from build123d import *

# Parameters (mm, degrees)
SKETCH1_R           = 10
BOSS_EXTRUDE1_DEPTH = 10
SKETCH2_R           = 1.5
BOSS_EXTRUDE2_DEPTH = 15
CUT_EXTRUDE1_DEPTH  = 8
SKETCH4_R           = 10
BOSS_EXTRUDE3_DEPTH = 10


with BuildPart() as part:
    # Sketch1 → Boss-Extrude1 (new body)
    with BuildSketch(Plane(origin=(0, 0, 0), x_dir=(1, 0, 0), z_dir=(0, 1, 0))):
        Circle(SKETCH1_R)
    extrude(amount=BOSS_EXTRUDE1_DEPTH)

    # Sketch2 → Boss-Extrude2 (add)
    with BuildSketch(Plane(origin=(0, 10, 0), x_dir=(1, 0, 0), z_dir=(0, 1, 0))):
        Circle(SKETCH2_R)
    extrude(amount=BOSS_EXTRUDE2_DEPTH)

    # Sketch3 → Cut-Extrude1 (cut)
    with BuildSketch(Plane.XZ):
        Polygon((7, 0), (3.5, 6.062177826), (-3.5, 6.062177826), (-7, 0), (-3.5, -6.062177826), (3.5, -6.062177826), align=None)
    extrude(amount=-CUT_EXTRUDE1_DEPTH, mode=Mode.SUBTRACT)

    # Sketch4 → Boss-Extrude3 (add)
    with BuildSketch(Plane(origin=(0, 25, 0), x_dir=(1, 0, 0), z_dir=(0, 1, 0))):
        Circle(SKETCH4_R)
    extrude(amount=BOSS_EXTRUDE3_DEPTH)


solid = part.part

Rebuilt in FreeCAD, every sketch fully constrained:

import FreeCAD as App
import Part
import Sketcher

V = App.Vector
Q = App.Units.Quantity

doc = App.newDocument("Part")
body = doc.addObject("PartDesign::Body", "Body")

sketch1 = body.newObject("Sketcher::SketchObject", "Sketch")
sketch1.AttachmentSupport = (doc.getObject("XZ_Plane"), [""])
sketch1.MapMode = "FlatFace"
sketch1.addGeometry(Part.Circle(V(0, 0, 0), V(0, 0, 1), 10), False)
sketch1.addConstraint(Sketcher.Constraint("Coincident", 0, 3, -1, 1))
sketch1.addConstraint(Sketcher.Constraint("Diameter", 0, 20.0))
pad1 = body.newObject("PartDesign::Pad", "Pad")
pad1.Profile = sketch1
pad1.Length = 10
pad1.Reversed = True

sketch2 = body.newObject("Sketcher::SketchObject", "Sketch001")
sketch2.AttachmentSupport = (doc.getObject("XZ_Plane"), [""])
sketch2.MapMode = "FlatFace"
sketch2.AttachmentOffset = App.Placement(V(0, 0, -10), App.Rotation())
sketch2.addGeometry(Part.Circle(V(0, 0, 0), V(0, 0, 1), 1.5), False)
sketch2.addConstraint(Sketcher.Constraint("Coincident", 0, 3, -1, 1))
sketch2.addConstraint(Sketcher.Constraint("Diameter", 0, 3.0))
pad2 = body.newObject("PartDesign::Pad", "Pad001")
pad2.Profile = sketch2
pad2.Length = 15
pad2.Reversed = True

sketch3 = body.newObject("Sketcher::SketchObject", "Sketch002")
sketch3.AttachmentSupport = (doc.getObject("XZ_Plane"), [""])
sketch3.MapMode = "FlatFace"
sketch3.addGeometry(Part.LineSegment(V(7, 0, 0), V(4, 6, 0)), False)
sketch3.addGeometry(Part.LineSegment(V(4, 6, 0), V(-4, 6, 0)), False)
sketch3.addGeometry(Part.LineSegment(V(-4, 6, 0), V(-7, 0, 0)), False)
sketch3.addGeometry(Part.LineSegment(V(-7, 0, 0), V(-4, -6, 0)), False)
sketch3.addGeometry(Part.LineSegment(V(-4, -6, 0), V(4, -6, 0)), False)
sketch3.addGeometry(Part.LineSegment(V(4, -6, 0), V(7, 0, 0)), False)
sketch3.addConstraint(Sketcher.Constraint("Coincident", 0, 2, 1, 1))
sketch3.addConstraint(Sketcher.Constraint("Coincident", 1, 2, 2, 1))
sketch3.addConstraint(Sketcher.Constraint("Coincident", 2, 2, 3, 1))
sketch3.addConstraint(Sketcher.Constraint("Coincident", 3, 2, 4, 1))
sketch3.addConstraint(Sketcher.Constraint("Coincident", 4, 2, 5, 1))
sketch3.addConstraint(Sketcher.Constraint("Coincident", 5, 2, 0, 1))
sketch3.addConstraint(Sketcher.Constraint("Horizontal", 1))
sketch3.addConstraint(Sketcher.Constraint("Horizontal", 4))
sketch3.addConstraint(Sketcher.Constraint("Symmetric", 0, 2, 3, 2, -1, 1))
sketch3.addConstraint(Sketcher.Constraint("Symmetric", 2, 2, 5, 2, -1, 1))
sketch3.addConstraint(Sketcher.Constraint("PointOnObject", 2, 2, -1))
sketch3.addConstraint(Sketcher.Constraint("Parallel", 2, 5))
sketch3.addConstraint(Sketcher.Constraint("Vertical", 1, 2, 3, 2))
sketch3.addConstraint(Sketcher.Constraint("DistanceX", 1, 2, 1, 1, 7.0))
sketch3.addConstraint(Sketcher.Constraint("Angle", 0, Q("120 deg")))
sketch3.addConstraint(Sketcher.Constraint("Distance", 0, 7.0))
pocket1 = body.newObject("PartDesign::Pocket", "Pocket")
pocket1.Profile = sketch3
pocket1.Length = 8

sketch4 = body.newObject("Sketcher::SketchObject", "Sketch003")
sketch4.AttachmentSupport = (doc.getObject("XZ_Plane"), [""])
sketch4.MapMode = "FlatFace"
sketch4.AttachmentOffset = App.Placement(V(0, 0, -25), App.Rotation())
sketch4.addGeometry(Part.Circle(V(0, 0, 0), V(0, 0, 1), 10), False)
sketch4.addConstraint(Sketcher.Constraint("Coincident", 0, 3, -1, 1))
sketch4.addConstraint(Sketcher.Constraint("Diameter", 0, 20.0))
pad3 = body.newObject("PartDesign::Pad", "Pad002")
pad3.Profile = sketch4
pad3.Length = 10
pad3.Reversed = True

doc.recompute()
